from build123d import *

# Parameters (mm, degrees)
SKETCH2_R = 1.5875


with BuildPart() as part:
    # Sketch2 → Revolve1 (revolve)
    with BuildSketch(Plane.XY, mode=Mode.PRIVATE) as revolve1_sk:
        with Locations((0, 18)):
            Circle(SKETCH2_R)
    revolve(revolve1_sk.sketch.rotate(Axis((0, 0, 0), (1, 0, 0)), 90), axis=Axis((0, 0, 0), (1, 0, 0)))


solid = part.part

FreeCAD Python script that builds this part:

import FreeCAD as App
import Part
import Sketcher
Q = App.Units.Quantity

doc = App.newDocument("Part")
body = doc.addObject("PartDesign::Body", "Body")

# Sketch on XY plane
sketch1 = body.newObject("Sketcher::SketchObject", "Sketch")
sketch1.AttachmentSupport = (doc.getObject("XY_Plane"), [""])
sketch1.MapMode = "FlatFace"
sketch1.addGeometry(Part.Circle(App.Vector(0, 18, 0), App.Vector(0, 0, 1), 1.6), False)
sketch1.addConstraint(Sketcher.Constraint("PointOnObject", 0, 3, -2))
sketch1.addConstraint(Sketcher.Constraint("Diameter", 0, Q("0.125 in")))
sketch1.addConstraint(Sketcher.Constraint("DistanceY", -1, 1, 0, 3, Q("18 mm")))
revolution = body.newObject("PartDesign::Revolution", "Revolution")
revolution.Profile = sketch1
revolution.ReferenceAxis = (sketch1, ["H_Axis"])
revolution.Angle = 360

doc.recompute()
